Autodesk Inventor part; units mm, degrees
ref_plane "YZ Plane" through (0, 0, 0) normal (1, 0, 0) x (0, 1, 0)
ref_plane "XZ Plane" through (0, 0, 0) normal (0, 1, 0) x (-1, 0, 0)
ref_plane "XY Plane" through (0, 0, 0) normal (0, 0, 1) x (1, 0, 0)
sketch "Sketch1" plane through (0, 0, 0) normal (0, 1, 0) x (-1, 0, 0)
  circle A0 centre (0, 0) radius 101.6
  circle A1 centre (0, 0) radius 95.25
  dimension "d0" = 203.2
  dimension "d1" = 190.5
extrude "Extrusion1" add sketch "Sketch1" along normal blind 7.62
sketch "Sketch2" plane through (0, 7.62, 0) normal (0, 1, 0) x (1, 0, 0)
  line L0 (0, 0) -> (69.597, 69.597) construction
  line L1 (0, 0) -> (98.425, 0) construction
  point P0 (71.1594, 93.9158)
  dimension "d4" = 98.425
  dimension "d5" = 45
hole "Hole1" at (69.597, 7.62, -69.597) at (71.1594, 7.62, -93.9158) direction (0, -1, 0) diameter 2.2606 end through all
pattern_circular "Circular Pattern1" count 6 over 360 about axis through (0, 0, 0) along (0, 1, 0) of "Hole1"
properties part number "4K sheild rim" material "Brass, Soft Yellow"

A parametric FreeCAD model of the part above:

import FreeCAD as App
import Part
import Sketcher
from FreeCAD import Vector
Q = App.Units.Quantity

doc = App.newDocument("Part")
body = doc.addObject("PartDesign::Body", "Body")

# Sketch on XZ plane
sketch1 = doc.addObject("Sketcher::SketchObject", "Sketch")
body.addObject(sketch1)
sketch1.AttachmentSupport = (doc.XZ_Plane, [""])
sketch1.MapMode = "FlatFace"
sketch1.addGeometry([
    Part.Circle(Vector(0, 0, 0), Vector(0, 0, 1), 101.6),
    Part.Circle(Vector(0, 0, 0), Vector(0, 0, 1), 95.25),
], False)
sketch1.addConstraint([
    Sketcher.Constraint("Coincident", 0, 3, -1, 1),
    Sketcher.Constraint("Coincident", 1, 3, -1, 1),
    Sketcher.Constraint("Diameter", 0, Q("8 in")),
    Sketcher.Constraint("Diameter", 1, Q("7.5 in")),
])
pad1 = doc.addObject("PartDesign::Pad", "Pad")
body.addObject(pad1)
pad1.Profile = sketch1
pad1.Length = Q("0.3 in")
pad1.Reversed = True

# Sketch on XZ plane
sketch2 = doc.addObject("Sketcher::SketchObject", "Sketch001")
body.addObject(sketch2)
sketch2.AttachmentSupport = (doc.XZ_Plane, [""])
sketch2.MapMode = "FlatFace"
sketch2.AttachmentOffset = App.Placement(Vector(0, 0, -0.3 * 25.4), App.Rotation())
sketch2.addGeometry([
    Part.Circle(Vector(69.597, -69.597, 0), Vector(0, 0, 1), 1.1303),
    Part.Circle(Vector(71.1594, -93.9158, 0), Vector(0, 0, 1), 1.1303),
], False)
sketch2.addConstraint([
    Sketcher.Constraint("Equal", 0, 1),
    Sketcher.Constraint("Diameter", 0, Q("0.089 in")),
    Sketcher.Constraint("DistanceX", 0, 3, 1, 3, Q("0.0615 in")),
    Sketcher.Constraint("DistanceX", -1, 1, 0, 3, 69.597),
    Sketcher.Constraint("DistanceY", 0, 3, -1, 1, 69.597),
    Sketcher.Constraint("DistanceY", 1, 3, -1, 1, 93.9158),
])
doc.recompute()
hole = doc.addObject("PartDesign::Hole", "Hole")
body.addObject(hole)
hole.Profile = sketch2
hole.ThreadType = "None"
hole.Diameter = Q("0.089 in")
hole.DepthType = "ThroughAll"
hole.Reversed = True
doc.recompute()

polarpattern = doc.addObject("PartDesign::PolarPattern", "PolarPattern")
body.addObject(polarpattern)
polarpattern.Originals = [hole]
polarpattern.Axis = (doc.Y_Axis, [""])
polarpattern.Angle = 360
polarpattern.Occurrences = 6
body.Tip = polarpattern

doc.recompute()
